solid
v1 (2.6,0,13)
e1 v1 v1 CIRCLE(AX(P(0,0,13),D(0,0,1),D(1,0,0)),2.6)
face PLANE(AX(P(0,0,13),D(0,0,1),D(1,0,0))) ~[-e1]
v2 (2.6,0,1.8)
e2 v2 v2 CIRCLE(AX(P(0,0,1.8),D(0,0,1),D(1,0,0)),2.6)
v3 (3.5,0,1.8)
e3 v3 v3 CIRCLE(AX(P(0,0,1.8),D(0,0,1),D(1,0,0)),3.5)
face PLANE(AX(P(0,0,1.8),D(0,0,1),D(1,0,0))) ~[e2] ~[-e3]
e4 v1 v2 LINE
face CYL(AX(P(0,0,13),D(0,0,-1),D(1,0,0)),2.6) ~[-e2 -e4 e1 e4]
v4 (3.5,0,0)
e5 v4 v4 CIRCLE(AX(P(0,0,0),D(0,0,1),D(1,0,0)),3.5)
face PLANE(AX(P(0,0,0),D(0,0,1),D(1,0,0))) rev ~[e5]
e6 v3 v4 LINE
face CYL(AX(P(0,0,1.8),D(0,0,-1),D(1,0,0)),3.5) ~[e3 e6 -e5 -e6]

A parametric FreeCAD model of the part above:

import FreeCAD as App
import Part
import Sketcher

doc = App.newDocument("Part")
body = doc.addObject("PartDesign::Body", "Body")

sketch1 = body.newObject("Sketcher::SketchObject", "Sketch")
sketch1.AttachmentSupport = (doc.getObject("XZ_Plane"), [""])
sketch1.MapMode = "FlatFace"
sketch1.addGeometry([
    Part.LineSegment(App.Vector(2.6, 13, 0), App.Vector(0, 13, 0)),
    Part.LineSegment(App.Vector(0, 13, 0), App.Vector(0, 0, 0)),
    Part.LineSegment(App.Vector(0, 0, 0), App.Vector(3.5, 0, 0)),
    Part.LineSegment(App.Vector(3.5, 0, 0), App.Vector(3.5, 1.8, 0)),
    Part.LineSegment(App.Vector(3.5, 1.8, 0), App.Vector(2.6, 1.8, 0)),
    Part.LineSegment(App.Vector(2.6, 1.8, 0), App.Vector(2.6, 13, 0)),
], False)
sketch1.addConstraint([
    Sketcher.Constraint("Coincident", 0, 2, 1, 1),
    Sketcher.Constraint("Coincident", 1, 2, 2, 1),
    Sketcher.Constraint("Coincident", 2, 2, 3, 1),
    Sketcher.Constraint("Coincident", 3, 2, 4, 1),
    Sketcher.Constraint("Coincident", 4, 2, 5, 1),
    Sketcher.Constraint("Coincident", 5, 2, 0, 1),
    Sketcher.Constraint("Horizontal", 0),
    Sketcher.Constraint("Vertical", 1),
    Sketcher.Constraint("Horizontal", 2),
    Sketcher.Constraint("Vertical", 3),
    Sketcher.Constraint("Horizontal", 4),
    Sketcher.Constraint("Vertical", 5),
    Sketcher.Constraint("Coincident", 1, 2, -1, 1),
    Sketcher.Constraint("DistanceY", 1, 2, 1, 1, 13.0),
    Sketcher.Constraint("DistanceX", 0, 2, 0, 1, 2.6),
    Sketcher.Constraint("DistanceX", 2, 1, 2, 2, 3.5),
    Sketcher.Constraint("DistanceY", 3, 1, 3, 2, 1.8),
])
revolution = body.newObject("PartDesign::Revolution", "Revolution")
revolution.Profile = sketch1
revolution.ReferenceAxis = (sketch1, ["V_Axis"])
revolution.Angle = 360

doc.recompute()
